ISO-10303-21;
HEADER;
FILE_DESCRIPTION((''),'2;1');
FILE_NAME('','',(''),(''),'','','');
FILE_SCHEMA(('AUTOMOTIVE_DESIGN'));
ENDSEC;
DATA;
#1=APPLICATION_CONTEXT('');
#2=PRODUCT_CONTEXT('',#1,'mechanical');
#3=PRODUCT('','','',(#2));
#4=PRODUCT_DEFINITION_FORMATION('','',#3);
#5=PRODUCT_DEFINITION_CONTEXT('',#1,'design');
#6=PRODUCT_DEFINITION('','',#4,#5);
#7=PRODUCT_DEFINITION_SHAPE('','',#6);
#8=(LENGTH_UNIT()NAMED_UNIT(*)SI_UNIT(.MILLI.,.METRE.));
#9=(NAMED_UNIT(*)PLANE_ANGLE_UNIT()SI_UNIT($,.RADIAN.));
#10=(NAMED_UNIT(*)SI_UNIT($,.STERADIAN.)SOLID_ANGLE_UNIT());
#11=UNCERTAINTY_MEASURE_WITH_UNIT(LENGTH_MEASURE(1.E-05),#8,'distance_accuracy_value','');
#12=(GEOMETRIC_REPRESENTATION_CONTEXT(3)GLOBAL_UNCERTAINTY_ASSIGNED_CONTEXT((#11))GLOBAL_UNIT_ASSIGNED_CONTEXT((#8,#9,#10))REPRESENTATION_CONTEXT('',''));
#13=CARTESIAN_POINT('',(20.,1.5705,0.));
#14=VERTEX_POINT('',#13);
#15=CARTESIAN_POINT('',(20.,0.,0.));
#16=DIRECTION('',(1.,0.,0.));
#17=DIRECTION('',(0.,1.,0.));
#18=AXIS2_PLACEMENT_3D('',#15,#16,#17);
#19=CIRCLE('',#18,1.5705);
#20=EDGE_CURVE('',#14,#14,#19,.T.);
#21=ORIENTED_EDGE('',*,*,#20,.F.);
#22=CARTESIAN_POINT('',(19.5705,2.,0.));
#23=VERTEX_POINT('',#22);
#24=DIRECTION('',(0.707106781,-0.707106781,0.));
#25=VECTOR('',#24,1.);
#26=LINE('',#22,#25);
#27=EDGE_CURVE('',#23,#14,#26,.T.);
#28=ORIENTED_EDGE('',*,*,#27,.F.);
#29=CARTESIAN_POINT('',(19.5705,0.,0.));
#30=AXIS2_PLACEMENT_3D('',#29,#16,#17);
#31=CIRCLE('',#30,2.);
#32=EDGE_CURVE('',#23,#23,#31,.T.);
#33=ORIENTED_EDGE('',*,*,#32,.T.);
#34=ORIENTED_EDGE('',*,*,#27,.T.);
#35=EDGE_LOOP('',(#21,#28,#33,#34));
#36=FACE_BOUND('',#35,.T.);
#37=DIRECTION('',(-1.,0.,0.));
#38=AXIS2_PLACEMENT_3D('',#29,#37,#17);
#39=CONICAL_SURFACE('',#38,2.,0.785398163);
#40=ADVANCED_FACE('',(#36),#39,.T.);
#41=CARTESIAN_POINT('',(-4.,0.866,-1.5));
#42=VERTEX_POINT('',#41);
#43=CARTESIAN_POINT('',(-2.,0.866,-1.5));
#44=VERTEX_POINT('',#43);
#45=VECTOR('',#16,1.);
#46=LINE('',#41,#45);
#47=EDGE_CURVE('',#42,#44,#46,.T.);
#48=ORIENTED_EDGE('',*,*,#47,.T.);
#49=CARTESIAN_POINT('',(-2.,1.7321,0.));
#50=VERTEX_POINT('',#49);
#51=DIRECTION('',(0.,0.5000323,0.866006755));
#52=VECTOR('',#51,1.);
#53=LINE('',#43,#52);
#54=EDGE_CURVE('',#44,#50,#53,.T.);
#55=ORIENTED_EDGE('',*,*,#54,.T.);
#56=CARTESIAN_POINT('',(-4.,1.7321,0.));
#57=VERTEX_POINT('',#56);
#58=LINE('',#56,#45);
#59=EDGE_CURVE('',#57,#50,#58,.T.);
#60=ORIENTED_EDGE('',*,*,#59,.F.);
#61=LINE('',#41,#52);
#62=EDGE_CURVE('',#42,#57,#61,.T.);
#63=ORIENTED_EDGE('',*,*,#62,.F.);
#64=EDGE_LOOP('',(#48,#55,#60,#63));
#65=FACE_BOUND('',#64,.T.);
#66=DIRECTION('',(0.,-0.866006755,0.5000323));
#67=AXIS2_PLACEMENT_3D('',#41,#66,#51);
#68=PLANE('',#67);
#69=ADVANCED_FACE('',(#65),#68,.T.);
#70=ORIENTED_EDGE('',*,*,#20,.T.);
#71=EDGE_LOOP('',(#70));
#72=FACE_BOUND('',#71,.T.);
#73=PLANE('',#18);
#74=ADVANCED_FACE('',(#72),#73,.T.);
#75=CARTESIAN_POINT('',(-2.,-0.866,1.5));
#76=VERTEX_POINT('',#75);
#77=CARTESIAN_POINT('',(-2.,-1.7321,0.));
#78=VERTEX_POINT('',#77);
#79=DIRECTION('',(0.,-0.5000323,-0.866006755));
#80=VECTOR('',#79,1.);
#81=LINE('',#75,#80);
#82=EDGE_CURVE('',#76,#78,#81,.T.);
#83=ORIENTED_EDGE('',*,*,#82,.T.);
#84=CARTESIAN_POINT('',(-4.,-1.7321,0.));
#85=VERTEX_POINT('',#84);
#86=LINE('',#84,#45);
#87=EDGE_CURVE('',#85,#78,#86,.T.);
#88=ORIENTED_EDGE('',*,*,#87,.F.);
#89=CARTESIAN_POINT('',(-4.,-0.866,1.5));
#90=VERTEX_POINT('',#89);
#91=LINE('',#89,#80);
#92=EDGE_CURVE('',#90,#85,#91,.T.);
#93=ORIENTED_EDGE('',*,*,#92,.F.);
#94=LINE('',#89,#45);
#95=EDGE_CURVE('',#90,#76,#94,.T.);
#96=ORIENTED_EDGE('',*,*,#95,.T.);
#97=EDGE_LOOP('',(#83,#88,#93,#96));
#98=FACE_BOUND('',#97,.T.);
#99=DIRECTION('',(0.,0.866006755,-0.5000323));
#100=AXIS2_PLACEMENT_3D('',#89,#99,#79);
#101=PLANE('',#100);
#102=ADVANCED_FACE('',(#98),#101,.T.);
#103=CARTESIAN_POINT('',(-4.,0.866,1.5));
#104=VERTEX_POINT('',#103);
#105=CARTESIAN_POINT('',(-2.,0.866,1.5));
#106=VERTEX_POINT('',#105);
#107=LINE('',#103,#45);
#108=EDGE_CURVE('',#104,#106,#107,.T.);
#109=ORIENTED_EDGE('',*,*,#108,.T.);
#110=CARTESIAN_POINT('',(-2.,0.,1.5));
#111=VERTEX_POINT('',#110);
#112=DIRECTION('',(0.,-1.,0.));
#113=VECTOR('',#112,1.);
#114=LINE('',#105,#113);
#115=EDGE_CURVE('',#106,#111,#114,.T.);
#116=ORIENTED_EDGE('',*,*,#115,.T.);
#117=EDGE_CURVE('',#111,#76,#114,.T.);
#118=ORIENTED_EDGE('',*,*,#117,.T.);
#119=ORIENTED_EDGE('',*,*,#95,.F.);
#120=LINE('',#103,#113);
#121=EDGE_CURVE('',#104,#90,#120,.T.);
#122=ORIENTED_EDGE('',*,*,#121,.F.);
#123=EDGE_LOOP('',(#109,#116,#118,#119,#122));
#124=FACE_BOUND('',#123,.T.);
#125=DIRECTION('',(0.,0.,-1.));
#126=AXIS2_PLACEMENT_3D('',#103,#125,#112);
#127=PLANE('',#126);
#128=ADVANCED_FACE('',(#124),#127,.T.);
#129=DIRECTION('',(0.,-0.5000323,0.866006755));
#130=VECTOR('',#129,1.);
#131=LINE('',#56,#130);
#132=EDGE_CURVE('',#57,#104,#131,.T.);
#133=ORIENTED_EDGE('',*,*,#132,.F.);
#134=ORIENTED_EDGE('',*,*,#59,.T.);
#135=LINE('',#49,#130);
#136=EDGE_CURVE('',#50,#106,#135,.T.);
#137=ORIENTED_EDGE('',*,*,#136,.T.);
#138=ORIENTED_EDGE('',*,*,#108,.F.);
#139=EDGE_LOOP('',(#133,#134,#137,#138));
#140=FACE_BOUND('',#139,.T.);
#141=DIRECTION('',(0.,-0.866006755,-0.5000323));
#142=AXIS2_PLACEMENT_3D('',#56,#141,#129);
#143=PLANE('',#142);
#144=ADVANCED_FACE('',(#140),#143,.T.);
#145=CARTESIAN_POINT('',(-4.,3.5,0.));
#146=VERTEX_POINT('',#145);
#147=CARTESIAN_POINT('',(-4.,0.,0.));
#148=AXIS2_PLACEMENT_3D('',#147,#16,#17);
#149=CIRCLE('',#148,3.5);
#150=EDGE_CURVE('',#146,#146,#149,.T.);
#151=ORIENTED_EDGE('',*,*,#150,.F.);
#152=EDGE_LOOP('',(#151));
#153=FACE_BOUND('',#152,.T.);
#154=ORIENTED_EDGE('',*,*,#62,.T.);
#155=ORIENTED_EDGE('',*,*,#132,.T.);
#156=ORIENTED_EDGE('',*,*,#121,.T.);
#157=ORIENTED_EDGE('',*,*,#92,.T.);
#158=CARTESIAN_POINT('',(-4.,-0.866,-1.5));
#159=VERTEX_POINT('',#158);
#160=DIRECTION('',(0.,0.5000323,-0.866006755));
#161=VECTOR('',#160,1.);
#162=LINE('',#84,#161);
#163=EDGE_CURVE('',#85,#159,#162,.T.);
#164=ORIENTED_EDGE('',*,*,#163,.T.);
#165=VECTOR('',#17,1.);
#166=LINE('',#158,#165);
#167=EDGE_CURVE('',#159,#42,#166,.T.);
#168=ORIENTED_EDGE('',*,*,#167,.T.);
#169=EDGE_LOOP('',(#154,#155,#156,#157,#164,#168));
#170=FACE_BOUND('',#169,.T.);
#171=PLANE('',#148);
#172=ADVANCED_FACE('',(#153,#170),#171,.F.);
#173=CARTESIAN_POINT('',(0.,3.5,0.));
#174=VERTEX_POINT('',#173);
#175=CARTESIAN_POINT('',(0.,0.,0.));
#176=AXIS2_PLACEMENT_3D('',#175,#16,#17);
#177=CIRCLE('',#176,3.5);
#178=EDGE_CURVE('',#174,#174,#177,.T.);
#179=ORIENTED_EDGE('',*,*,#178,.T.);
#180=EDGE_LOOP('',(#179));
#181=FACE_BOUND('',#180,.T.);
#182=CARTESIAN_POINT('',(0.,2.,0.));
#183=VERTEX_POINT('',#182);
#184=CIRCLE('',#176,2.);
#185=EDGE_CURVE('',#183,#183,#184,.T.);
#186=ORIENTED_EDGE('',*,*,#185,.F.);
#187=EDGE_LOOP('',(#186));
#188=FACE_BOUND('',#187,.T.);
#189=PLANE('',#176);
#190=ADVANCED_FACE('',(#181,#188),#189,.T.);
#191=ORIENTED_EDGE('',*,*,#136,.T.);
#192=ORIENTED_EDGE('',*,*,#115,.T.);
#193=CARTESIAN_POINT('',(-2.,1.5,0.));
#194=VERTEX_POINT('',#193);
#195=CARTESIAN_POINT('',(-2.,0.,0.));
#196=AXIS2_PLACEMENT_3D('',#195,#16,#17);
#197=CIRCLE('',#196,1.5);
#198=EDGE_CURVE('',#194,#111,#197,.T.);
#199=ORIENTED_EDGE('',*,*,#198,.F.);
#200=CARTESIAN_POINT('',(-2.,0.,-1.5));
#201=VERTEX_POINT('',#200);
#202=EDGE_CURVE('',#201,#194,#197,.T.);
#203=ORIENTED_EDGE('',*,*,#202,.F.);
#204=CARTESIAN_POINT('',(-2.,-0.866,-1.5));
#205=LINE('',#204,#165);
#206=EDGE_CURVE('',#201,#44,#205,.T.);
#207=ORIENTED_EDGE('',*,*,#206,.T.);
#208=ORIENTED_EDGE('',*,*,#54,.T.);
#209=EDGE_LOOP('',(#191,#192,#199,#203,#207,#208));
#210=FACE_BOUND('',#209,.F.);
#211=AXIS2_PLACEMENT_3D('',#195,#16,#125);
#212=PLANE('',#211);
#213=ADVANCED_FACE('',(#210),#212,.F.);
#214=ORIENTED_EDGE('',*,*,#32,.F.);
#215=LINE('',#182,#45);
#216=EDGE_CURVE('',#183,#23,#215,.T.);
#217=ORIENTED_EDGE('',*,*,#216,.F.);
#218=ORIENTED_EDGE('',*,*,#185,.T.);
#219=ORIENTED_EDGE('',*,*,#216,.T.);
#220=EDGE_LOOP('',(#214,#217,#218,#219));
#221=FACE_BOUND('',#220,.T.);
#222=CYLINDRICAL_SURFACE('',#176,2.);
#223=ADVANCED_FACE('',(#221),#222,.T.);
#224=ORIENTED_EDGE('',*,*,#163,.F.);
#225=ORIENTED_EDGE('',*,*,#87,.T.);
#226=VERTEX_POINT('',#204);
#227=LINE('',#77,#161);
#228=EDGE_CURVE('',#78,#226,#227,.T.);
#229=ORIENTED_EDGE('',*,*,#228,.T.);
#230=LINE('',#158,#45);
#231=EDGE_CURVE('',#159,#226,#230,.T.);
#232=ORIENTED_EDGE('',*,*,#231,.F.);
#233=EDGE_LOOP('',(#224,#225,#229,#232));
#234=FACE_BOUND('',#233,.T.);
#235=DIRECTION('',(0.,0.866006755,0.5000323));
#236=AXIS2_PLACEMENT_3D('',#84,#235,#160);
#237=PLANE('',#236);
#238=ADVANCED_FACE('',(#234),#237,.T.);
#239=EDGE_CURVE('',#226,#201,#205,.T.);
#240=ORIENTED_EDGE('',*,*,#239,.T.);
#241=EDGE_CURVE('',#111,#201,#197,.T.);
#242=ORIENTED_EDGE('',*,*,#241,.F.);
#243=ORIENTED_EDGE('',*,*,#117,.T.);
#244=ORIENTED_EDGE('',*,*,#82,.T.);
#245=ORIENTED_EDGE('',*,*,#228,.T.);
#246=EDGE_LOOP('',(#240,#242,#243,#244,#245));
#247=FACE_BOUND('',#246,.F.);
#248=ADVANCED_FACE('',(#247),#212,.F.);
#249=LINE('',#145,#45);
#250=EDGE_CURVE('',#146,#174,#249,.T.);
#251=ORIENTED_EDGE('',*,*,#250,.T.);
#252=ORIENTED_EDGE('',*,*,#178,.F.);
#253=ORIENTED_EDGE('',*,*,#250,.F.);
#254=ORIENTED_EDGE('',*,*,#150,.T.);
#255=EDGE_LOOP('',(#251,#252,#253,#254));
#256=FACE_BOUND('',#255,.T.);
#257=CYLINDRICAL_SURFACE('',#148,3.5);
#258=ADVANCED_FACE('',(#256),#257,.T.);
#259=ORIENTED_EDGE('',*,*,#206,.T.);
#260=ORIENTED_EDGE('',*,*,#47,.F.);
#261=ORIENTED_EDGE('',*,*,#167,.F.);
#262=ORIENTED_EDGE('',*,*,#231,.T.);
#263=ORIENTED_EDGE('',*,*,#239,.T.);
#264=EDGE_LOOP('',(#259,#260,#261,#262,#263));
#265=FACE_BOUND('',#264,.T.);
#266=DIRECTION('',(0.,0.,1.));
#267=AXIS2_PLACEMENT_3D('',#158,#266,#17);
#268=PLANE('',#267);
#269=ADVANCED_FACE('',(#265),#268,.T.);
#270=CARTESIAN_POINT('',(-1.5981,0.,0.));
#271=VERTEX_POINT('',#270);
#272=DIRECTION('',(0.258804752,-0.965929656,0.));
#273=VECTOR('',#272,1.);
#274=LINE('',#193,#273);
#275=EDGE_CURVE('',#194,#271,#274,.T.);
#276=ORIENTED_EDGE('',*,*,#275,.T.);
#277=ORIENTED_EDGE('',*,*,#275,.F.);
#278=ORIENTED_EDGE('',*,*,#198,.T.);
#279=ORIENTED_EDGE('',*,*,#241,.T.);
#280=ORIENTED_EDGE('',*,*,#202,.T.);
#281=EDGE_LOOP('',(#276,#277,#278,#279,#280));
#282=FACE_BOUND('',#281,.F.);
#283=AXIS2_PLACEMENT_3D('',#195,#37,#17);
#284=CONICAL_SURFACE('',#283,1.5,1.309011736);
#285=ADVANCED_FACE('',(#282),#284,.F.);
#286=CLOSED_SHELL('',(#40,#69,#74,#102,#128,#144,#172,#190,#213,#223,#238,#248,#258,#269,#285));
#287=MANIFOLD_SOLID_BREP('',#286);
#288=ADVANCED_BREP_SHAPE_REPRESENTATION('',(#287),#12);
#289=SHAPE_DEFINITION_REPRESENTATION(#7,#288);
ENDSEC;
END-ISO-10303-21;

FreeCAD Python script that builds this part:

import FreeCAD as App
import Part
import Sketcher
from FreeCAD import Vector
Q = App.Units.Quantity


def add_polygon(sketch, points):
    """Adds a closed chain of lines whose ends are joined by coincident constraints."""
    first, n = sketch.GeometryCount, len(points)
    for a, b in zip(points, points[1:] + points[:1]):
        sketch.addGeometry(Part.LineSegment(App.Vector(*a, 0), App.Vector(*b, 0)), False)
    for i in range(n):
        sketch.addConstraint(Sketcher.Constraint("Coincident", first + i, 2, first + (i + 1) % n, 1))

doc = App.newDocument("Part")
body = doc.addObject("PartDesign::Body", "Body")

# Sketch on XY plane
sketch1 = body.newObject("Sketcher::SketchObject", "Sketch")
sketch1.AttachmentSupport = (doc.getObject("XY_Plane"), [""])
sketch1.MapMode = "FlatFace"
add_polygon(sketch1, [(-4, 0), (20, 0), (20, 1.6), (19.6, 2), (0, 2), (0, 3.5), (-4, 3.5)])  # lines 0-6
sketch1.addConstraint(Sketcher.Constraint("Horizontal", 0))
sketch1.addConstraint(Sketcher.Constraint("Vertical", 1))
sketch1.addConstraint(Sketcher.Constraint("Horizontal", 3))
sketch1.addConstraint(Sketcher.Constraint("Vertical", 4))
sketch1.addConstraint(Sketcher.Constraint("Horizontal", 5))
sketch1.addConstraint(Sketcher.Constraint("Vertical", 6))
sketch1.addConstraint(Sketcher.Constraint("PointOnObject", 0, 2, -1))
sketch1.addConstraint(Sketcher.Constraint("PointOnObject", 3, 2, -2))
sketch1.addConstraint(Sketcher.Constraint("DistanceX", 0, 1, 0, 2, Q("24 mm")))
sketch1.addConstraint(Sketcher.Constraint("DistanceX", 5, 2, 5, 1, Q("4 mm")))
sketch1.addConstraint(Sketcher.Constraint("Angle", 2, Q("135 deg")))
sketch1.addConstraint(Sketcher.Constraint("DistanceY", 4, 1, 4, 2, Q("1.5 mm")))
sketch1.addConstraint(Sketcher.Constraint("DistanceY", 6, 2, 6, 1, Q("3.5 mm")))
sketch1.addConstraint(Sketcher.Constraint("DistanceX", 3, 2, 3, 1, Q("19.5705 mm")))
revolution = body.newObject("PartDesign::Revolution", "Revolution")
revolution.Profile = sketch1
revolution.ReferenceAxis = (sketch1, ["H_Axis"])
revolution.Angle = 360

# Sketch on XY plane
sketch2 = body.newObject("Sketcher::SketchObject", "Sketch001")
sketch2.AttachmentSupport = (doc.getObject("XY_Plane"), [""])
sketch2.MapMode = "FlatFace"
add_polygon(sketch2, [(-4, 0), (-1.6, 0), (-2, 1.5), (-4, 1.5)])  # lines 0-3
sketch2.addConstraint(Sketcher.Constraint("Horizontal", 0))
sketch2.addConstraint(Sketcher.Constraint("Horizontal", 2))
sketch2.addConstraint(Sketcher.Constraint("Vertical", 3))
sketch2.addConstraint(Sketcher.Constraint("PointOnObject", 0, 2, -1))
sketch2.addConstraint(Sketcher.Constraint("DistanceX", 2, 2, 2, 1, Q("2 mm")))
sketch2.addConstraint(Sketcher.Constraint("Angle", 1, Q("104.9992 deg")))
sketch2.addConstraint(Sketcher.Constraint("DistanceY", 3, 2, 3, 1, Q("1.5 mm")))
sketch2.addConstraint(Sketcher.Constraint("DistanceX", 1, 2, -1, 1, Q("2 mm")))
groove = body.newObject("PartDesign::Groove", "Groove")
groove.Profile = sketch2
groove.ReferenceAxis = (sketch2, ["H_Axis"])
groove.Angle = 360

# Sketch on YZ plane
sketch3 = body.newObject("Sketcher::SketchObject", "Sketch002")
sketch3.AttachmentSupport = (doc.getObject("YZ_Plane"), [""])
sketch3.MapMode = "FlatFace"
sketch3.AttachmentOffset = App.Placement(Vector(0, 0, -4), App.Rotation())
add_polygon(sketch3, [(1.7, 0), (0.9, 1.5), (-0.9, 1.5), (-1.7, 0), (-0.9, -1.5), (0.9, -1.5)])  # lines 0-5
sketch3.addConstraint(Sketcher.Constraint("Horizontal", 1))
sketch3.addConstraint(Sketcher.Constraint("Horizontal", 4))
sketch3.addConstraint(Sketcher.Constraint("Symmetric", 0, 2, 3, 2, -1, 1))
sketch3.addConstraint(Sketcher.Constraint("Symmetric", 2, 2, 5, 2, -1, 1))
sketch3.addConstraint(Sketcher.Constraint("PointOnObject", 2, 2, -1))
sketch3.addConstraint(Sketcher.Constraint("Parallel", 2, 5))
sketch3.addConstraint(Sketcher.Constraint("Vertical", 1, 2, 3, 2))
sketch3.addConstraint(Sketcher.Constraint("DistanceY", 3, 2, 1, 2, Q("3 mm")))
sketch3.addConstraint(Sketcher.Constraint("DistanceX", 1, 2, 1, 1, Q("1.732 mm")))
sketch3.addConstraint(Sketcher.Constraint("Distance", 0, Q("1.732 mm")))
pocket1 = body.newObject("PartDesign::Pocket", "Pocket")
pocket1.Profile = sketch3
pocket1.Length = 2
pocket1.Reversed = True

doc.recompute()
